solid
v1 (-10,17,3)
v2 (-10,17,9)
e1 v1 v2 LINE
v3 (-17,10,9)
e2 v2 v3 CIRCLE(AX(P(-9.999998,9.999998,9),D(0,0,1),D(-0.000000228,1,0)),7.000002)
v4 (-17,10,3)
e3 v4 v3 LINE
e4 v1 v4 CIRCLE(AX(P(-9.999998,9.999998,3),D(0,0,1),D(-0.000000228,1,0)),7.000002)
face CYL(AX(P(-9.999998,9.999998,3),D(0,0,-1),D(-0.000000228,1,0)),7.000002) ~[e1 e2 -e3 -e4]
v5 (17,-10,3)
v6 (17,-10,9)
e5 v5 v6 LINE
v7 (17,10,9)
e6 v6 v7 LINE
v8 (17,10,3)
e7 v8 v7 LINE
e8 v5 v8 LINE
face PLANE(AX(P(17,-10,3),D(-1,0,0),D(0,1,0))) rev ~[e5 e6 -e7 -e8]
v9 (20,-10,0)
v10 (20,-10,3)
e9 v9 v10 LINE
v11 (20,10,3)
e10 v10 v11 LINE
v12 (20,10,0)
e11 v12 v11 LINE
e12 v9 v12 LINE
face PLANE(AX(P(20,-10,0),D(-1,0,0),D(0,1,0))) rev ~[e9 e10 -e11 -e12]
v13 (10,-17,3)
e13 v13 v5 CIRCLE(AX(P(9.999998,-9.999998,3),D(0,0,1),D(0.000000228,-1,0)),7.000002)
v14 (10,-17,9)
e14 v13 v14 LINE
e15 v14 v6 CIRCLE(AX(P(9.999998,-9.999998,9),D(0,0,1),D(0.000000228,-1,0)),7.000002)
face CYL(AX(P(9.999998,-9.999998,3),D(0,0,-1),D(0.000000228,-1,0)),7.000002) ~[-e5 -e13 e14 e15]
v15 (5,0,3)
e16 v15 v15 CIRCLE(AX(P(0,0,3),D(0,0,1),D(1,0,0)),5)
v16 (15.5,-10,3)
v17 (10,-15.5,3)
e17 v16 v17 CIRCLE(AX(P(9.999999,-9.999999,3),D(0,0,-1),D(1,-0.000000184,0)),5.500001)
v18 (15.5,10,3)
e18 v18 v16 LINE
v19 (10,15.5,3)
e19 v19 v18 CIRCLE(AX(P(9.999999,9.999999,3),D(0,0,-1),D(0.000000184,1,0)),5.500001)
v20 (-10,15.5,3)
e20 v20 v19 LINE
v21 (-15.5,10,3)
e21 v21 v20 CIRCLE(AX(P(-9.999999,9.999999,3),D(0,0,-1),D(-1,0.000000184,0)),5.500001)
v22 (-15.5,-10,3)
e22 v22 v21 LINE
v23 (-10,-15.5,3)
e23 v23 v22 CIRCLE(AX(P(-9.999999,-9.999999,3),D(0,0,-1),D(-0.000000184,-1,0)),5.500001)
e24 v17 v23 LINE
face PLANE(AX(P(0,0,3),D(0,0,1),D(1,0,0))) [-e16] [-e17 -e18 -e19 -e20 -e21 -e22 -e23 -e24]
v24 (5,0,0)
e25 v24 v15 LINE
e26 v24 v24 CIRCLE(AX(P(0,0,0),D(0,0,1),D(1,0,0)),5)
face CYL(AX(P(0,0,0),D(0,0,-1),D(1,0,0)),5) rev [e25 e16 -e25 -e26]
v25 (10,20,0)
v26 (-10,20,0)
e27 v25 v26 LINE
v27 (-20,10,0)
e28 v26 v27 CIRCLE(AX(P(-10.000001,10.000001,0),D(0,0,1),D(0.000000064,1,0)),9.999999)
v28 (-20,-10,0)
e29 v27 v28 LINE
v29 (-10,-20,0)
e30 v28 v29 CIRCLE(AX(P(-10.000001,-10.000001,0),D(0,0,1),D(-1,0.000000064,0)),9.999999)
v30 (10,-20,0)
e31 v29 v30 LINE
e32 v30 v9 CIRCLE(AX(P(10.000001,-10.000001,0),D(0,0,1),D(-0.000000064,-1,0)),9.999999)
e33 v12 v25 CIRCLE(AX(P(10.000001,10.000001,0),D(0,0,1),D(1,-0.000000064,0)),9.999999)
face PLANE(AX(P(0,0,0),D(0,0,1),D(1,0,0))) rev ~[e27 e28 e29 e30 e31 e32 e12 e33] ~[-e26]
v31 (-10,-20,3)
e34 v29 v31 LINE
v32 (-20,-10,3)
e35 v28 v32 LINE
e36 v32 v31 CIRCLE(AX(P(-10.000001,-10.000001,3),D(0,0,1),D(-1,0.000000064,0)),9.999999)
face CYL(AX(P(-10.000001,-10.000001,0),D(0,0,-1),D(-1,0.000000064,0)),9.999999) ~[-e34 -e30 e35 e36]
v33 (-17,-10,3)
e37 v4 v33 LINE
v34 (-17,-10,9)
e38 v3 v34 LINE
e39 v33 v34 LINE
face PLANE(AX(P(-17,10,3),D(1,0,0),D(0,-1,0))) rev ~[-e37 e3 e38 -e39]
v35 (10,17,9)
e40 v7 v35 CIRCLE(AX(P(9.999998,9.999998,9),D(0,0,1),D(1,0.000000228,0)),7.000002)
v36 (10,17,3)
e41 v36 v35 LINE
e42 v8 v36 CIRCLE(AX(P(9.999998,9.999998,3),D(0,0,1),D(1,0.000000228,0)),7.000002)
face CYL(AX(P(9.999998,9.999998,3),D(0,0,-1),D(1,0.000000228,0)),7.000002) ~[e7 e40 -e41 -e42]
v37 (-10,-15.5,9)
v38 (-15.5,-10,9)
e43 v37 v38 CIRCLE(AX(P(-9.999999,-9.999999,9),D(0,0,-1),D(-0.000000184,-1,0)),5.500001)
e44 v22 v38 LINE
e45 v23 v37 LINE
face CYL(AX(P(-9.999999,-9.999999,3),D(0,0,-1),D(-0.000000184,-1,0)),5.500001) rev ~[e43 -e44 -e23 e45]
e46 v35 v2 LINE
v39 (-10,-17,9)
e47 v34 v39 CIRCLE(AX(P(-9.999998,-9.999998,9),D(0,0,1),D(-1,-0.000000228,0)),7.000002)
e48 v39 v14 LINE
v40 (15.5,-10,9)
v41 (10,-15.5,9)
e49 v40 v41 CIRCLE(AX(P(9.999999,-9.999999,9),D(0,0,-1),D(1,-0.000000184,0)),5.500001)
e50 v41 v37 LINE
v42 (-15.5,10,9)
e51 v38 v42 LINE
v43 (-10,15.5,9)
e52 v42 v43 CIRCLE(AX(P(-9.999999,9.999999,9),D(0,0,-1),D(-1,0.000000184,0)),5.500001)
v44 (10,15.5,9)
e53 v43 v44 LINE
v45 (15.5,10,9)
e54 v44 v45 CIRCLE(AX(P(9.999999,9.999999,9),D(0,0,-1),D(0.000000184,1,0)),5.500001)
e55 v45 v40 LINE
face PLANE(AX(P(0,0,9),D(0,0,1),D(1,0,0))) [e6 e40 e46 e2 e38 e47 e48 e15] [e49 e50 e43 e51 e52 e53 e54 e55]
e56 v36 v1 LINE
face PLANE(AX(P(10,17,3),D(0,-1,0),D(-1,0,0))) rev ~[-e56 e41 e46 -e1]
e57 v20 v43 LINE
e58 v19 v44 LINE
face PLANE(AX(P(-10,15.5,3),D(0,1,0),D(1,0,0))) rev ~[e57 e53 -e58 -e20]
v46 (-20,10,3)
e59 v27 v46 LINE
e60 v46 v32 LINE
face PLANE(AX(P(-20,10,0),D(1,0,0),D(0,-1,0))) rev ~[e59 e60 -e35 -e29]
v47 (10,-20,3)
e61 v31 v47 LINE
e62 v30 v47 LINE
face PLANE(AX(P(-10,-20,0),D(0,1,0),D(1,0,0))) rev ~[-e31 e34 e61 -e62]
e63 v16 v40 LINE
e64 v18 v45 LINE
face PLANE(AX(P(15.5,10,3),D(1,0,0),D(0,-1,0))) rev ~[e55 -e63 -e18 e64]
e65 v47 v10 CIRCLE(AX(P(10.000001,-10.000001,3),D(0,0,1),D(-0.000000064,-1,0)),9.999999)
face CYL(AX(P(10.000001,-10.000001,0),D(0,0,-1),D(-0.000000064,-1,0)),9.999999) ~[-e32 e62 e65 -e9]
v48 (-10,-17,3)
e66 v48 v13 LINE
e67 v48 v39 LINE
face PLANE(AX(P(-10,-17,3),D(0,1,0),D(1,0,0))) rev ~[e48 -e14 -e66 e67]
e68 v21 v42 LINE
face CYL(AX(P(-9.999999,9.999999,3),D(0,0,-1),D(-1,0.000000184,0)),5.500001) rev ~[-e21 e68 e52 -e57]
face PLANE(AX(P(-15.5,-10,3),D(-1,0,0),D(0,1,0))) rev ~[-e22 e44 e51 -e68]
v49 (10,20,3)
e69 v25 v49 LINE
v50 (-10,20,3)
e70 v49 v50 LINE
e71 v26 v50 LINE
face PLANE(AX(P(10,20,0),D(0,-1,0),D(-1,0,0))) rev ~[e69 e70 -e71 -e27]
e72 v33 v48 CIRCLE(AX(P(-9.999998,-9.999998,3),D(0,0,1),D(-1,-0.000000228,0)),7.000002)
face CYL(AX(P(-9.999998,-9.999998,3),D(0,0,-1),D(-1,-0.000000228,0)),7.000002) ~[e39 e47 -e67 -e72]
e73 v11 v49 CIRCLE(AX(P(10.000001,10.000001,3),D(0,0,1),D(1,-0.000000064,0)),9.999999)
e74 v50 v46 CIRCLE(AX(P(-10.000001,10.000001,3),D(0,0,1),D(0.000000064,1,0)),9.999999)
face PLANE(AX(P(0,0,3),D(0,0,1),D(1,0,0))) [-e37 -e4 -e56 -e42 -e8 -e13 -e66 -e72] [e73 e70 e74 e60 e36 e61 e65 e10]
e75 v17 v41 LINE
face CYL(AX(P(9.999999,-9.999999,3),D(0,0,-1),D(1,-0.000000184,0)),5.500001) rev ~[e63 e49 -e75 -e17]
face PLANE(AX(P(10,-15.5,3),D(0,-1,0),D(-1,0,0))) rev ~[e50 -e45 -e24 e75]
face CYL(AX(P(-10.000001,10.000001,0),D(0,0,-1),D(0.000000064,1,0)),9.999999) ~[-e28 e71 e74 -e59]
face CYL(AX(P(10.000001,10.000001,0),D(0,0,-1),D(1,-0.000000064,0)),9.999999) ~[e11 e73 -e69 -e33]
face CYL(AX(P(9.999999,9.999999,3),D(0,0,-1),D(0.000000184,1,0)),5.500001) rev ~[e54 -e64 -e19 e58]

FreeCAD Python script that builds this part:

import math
import FreeCAD as App
import Part
import Sketcher

V = App.Vector
Q = App.Units.Quantity

doc = App.newDocument("Part")
body = doc.addObject("PartDesign::Body", "Body")

# Sketch on XY plane
sketch1 = body.newObject("Sketcher::SketchObject", "Sketch")
sketch1.AttachmentSupport = (doc.getObject("XY_Plane"), [""])
sketch1.MapMode = "FlatFace"
sketch1.addGeometry([
    Part.ArcOfCircle(Part.Circle(V(10, 10, 0), V(0, 0, 1), 10), math.radians(0), math.radians(90)),  # 0
    Part.LineSegment(V(10, 20, 0), V(-10, 20, 0)),  # 1
    Part.ArcOfCircle(Part.Circle(V(-10, 10, 0), V(0, 0, 1), 10), math.radians(90), math.radians(180)),  # 2
    Part.LineSegment(V(-20, 10, 0), V(-20, -10, 0)),  # 3
    Part.ArcOfCircle(Part.Circle(V(-10, -10, 0), V(0, 0, 1), 10), math.radians(180), math.radians(270)),  # 4
    Part.LineSegment(V(-10, -20, 0), V(10, -20, 0)),  # 5
    Part.ArcOfCircle(Part.Circle(V(10, -10, 0), V(0, 0, 1), 10), math.radians(-90), math.radians(0)),  # 6
    Part.LineSegment(V(20, -10, 0), V(20, 10, 0)),  # 7
    Part.Circle(V(0, 0, 0), V(0, 0, 1), 5),  # 8
], False)
sketch1.addConstraint([
    Sketcher.Constraint("Tangent", 0, 2, 1, 1),
    Sketcher.Constraint("Tangent", 1, 2, 2, 1),
    Sketcher.Constraint("Tangent", 2, 2, 3, 1),
    Sketcher.Constraint("Tangent", 3, 2, 4, 1),
    Sketcher.Constraint("Tangent", 4, 2, 5, 1),
    Sketcher.Constraint("Tangent", 5, 2, 6, 1),
    Sketcher.Constraint("Tangent", 6, 2, 7, 1),
    Sketcher.Constraint("Tangent", 7, 2, 0, 1),
    Sketcher.Constraint("Horizontal", 1),
    Sketcher.Constraint("Vertical", 3),
    Sketcher.Constraint("Horizontal", 5),
    Sketcher.Constraint("Vertical", 7),
    Sketcher.Constraint("Coincident", 8, 3, -1, 1),
    Sketcher.Constraint("Equal", 0, 2),
    Sketcher.Constraint("Equal", 2, 4),
    Sketcher.Constraint("Equal", 4, 6),
    Sketcher.Constraint("Symmetric", 0, 3, 4, 3, -1, 1),
    Sketcher.Constraint("Equal", 5, 3),
    Sketcher.Constraint("Diameter", 8, Q("10 mm")),
    Sketcher.Constraint("Radius", 0, Q("9.999999 mm")),
    Sketcher.Constraint("DistanceX", 1, 2, 1, 1, Q("20 mm")),
])
pad1 = body.newObject("PartDesign::Pad", "Pad")
pad1.Profile = sketch1
pad1.Length = 3

# Sketch on XY plane
sketch2 = body.newObject("Sketcher::SketchObject", "Sketch001")
sketch2.AttachmentSupport = (doc.getObject("XY_Plane"), [""])
sketch2.MapMode = "FlatFace"
sketch2.AttachmentOffset = App.Placement(V(0, 0, 3), App.Rotation())
sketch2.addGeometry([
    Part.ArcOfCircle(Part.Circle(V(10, 10, 0), V(0, 0, 1), 7), math.radians(0), math.radians(90)),  # 0
    Part.LineSegment(V(10, 17, 0), V(-10, 17, 0)),  # 1
    Part.ArcOfCircle(Part.Circle(V(-10, 10, 0), V(0, 0, 1), 7), math.radians(90), math.radians(180)),  # 2
    Part.LineSegment(V(-17, 10, 0), V(-17, -10, 0)),  # 3
    Part.ArcOfCircle(Part.Circle(V(-10, -10, 0), V(0, 0, 1), 7), math.radians(-180), math.radians(-90)),  # 4
    Part.LineSegment(V(-10, -17, 0), V(10, -17, 0)),  # 5
    Part.ArcOfCircle(Part.Circle(V(10, -10, 0), V(0, 0, 1), 7), math.radians(-90), math.radians(0)),  # 6
    Part.LineSegment(V(17, -10, 0), V(17, 10, 0)),  # 7
    Part.ArcOfCircle(Part.Circle(V(-10, 10, 0), V(0, 0, 1), 6), math.radians(90), math.radians(180)),  # 8
    Part.LineSegment(V(-10, 16, 0), V(10, 16, 0)),  # 9
    Part.ArcOfCircle(Part.Circle(V(10, 10, 0), V(0, 0, 1), 6), math.radians(0), math.radians(90)),  # 10
    Part.LineSegment(V(16, 10, 0), V(16, -10, 0)),  # 11
    Part.ArcOfCircle(Part.Circle(V(10, -10, 0), V(0, 0, 1), 6), math.radians(-90), math.radians(0)),  # 12
    Part.LineSegment(V(10, -16, 0), V(-10, -16, 0)),  # 13
    Part.ArcOfCircle(Part.Circle(V(-10, -10, 0), V(0, 0, 1), 6), math.radians(-180), math.radians(-90)),  # 14
    Part.LineSegment(V(-16, -10, 0), V(-16, 10, 0)),  # 15
], False)
sketch2.addConstraint([
    Sketcher.Constraint("Tangent", 0, 2, 1, 1),
    Sketcher.Constraint("Tangent", 1, 2, 2, 1),
    Sketcher.Constraint("Tangent", 2, 2, 3, 1),
    Sketcher.Constraint("Tangent", 3, 2, 4, 1),
    Sketcher.Constraint("Tangent", 4, 2, 5, 1),
    Sketcher.Constraint("Tangent", 5, 2, 6, 1),
    Sketcher.Constraint("Tangent", 6, 2, 7, 1),
    Sketcher.Constraint("Tangent", 7, 2, 0, 1),
    Sketcher.Constraint("Tangent", 8, 1, 9, 1),
    Sketcher.Constraint("Tangent", 9, 2, 10, 2),
    Sketcher.Constraint("Tangent", 10, 1, 11, 1),
    Sketcher.Constraint("Tangent", 11, 2, 12, 2),
    Sketcher.Constraint("Tangent", 12, 1, 13, 1),
    Sketcher.Constraint("Tangent", 13, 2, 14, 2),
    Sketcher.Constraint("Tangent", 14, 1, 15, 1),
    Sketcher.Constraint("Tangent", 15, 2, 8, 2),
    Sketcher.Constraint("Horizontal", 1),
    Sketcher.Constraint("Vertical", 3),
    Sketcher.Constraint("Horizontal", 5),
    Sketcher.Constraint("Vertical", 7),
    Sketcher.Constraint("Horizontal", 9),
    Sketcher.Constraint("Vertical", 11),
    Sketcher.Constraint("Horizontal", 13),
    Sketcher.Constraint("Vertical", 15),
    Sketcher.Constraint("Coincident", 8, 3, 2, 3),
    Sketcher.Constraint("Coincident", 10, 3, 0, 3),
    Sketcher.Constraint("Coincident", 12, 3, 6, 3),
    Sketcher.Constraint("Equal", 0, 2),
    Sketcher.Constraint("Equal", 2, 4),
    Sketcher.Constraint("Equal", 4, 6),
    Sketcher.Constraint("Equal", 12, 14),
    Sketcher.Constraint("Symmetric", 0, 3, 4, 3, -1, 1),
    Sketcher.Constraint("Equal", 13, 3),
    Sketcher.Constraint("Radius", 0, Q("7.000002 mm")),
    Sketcher.Constraint("Radius", 8, Q("5.500001 mm")),
    Sketcher.Constraint("DistanceX", 1, 2, 1, 1, Q("20 mm")),
])
pad2 = body.newObject("PartDesign::Pad", "Pad001")
pad2.Profile = sketch2
pad2.Length = 6

doc.recompute()
